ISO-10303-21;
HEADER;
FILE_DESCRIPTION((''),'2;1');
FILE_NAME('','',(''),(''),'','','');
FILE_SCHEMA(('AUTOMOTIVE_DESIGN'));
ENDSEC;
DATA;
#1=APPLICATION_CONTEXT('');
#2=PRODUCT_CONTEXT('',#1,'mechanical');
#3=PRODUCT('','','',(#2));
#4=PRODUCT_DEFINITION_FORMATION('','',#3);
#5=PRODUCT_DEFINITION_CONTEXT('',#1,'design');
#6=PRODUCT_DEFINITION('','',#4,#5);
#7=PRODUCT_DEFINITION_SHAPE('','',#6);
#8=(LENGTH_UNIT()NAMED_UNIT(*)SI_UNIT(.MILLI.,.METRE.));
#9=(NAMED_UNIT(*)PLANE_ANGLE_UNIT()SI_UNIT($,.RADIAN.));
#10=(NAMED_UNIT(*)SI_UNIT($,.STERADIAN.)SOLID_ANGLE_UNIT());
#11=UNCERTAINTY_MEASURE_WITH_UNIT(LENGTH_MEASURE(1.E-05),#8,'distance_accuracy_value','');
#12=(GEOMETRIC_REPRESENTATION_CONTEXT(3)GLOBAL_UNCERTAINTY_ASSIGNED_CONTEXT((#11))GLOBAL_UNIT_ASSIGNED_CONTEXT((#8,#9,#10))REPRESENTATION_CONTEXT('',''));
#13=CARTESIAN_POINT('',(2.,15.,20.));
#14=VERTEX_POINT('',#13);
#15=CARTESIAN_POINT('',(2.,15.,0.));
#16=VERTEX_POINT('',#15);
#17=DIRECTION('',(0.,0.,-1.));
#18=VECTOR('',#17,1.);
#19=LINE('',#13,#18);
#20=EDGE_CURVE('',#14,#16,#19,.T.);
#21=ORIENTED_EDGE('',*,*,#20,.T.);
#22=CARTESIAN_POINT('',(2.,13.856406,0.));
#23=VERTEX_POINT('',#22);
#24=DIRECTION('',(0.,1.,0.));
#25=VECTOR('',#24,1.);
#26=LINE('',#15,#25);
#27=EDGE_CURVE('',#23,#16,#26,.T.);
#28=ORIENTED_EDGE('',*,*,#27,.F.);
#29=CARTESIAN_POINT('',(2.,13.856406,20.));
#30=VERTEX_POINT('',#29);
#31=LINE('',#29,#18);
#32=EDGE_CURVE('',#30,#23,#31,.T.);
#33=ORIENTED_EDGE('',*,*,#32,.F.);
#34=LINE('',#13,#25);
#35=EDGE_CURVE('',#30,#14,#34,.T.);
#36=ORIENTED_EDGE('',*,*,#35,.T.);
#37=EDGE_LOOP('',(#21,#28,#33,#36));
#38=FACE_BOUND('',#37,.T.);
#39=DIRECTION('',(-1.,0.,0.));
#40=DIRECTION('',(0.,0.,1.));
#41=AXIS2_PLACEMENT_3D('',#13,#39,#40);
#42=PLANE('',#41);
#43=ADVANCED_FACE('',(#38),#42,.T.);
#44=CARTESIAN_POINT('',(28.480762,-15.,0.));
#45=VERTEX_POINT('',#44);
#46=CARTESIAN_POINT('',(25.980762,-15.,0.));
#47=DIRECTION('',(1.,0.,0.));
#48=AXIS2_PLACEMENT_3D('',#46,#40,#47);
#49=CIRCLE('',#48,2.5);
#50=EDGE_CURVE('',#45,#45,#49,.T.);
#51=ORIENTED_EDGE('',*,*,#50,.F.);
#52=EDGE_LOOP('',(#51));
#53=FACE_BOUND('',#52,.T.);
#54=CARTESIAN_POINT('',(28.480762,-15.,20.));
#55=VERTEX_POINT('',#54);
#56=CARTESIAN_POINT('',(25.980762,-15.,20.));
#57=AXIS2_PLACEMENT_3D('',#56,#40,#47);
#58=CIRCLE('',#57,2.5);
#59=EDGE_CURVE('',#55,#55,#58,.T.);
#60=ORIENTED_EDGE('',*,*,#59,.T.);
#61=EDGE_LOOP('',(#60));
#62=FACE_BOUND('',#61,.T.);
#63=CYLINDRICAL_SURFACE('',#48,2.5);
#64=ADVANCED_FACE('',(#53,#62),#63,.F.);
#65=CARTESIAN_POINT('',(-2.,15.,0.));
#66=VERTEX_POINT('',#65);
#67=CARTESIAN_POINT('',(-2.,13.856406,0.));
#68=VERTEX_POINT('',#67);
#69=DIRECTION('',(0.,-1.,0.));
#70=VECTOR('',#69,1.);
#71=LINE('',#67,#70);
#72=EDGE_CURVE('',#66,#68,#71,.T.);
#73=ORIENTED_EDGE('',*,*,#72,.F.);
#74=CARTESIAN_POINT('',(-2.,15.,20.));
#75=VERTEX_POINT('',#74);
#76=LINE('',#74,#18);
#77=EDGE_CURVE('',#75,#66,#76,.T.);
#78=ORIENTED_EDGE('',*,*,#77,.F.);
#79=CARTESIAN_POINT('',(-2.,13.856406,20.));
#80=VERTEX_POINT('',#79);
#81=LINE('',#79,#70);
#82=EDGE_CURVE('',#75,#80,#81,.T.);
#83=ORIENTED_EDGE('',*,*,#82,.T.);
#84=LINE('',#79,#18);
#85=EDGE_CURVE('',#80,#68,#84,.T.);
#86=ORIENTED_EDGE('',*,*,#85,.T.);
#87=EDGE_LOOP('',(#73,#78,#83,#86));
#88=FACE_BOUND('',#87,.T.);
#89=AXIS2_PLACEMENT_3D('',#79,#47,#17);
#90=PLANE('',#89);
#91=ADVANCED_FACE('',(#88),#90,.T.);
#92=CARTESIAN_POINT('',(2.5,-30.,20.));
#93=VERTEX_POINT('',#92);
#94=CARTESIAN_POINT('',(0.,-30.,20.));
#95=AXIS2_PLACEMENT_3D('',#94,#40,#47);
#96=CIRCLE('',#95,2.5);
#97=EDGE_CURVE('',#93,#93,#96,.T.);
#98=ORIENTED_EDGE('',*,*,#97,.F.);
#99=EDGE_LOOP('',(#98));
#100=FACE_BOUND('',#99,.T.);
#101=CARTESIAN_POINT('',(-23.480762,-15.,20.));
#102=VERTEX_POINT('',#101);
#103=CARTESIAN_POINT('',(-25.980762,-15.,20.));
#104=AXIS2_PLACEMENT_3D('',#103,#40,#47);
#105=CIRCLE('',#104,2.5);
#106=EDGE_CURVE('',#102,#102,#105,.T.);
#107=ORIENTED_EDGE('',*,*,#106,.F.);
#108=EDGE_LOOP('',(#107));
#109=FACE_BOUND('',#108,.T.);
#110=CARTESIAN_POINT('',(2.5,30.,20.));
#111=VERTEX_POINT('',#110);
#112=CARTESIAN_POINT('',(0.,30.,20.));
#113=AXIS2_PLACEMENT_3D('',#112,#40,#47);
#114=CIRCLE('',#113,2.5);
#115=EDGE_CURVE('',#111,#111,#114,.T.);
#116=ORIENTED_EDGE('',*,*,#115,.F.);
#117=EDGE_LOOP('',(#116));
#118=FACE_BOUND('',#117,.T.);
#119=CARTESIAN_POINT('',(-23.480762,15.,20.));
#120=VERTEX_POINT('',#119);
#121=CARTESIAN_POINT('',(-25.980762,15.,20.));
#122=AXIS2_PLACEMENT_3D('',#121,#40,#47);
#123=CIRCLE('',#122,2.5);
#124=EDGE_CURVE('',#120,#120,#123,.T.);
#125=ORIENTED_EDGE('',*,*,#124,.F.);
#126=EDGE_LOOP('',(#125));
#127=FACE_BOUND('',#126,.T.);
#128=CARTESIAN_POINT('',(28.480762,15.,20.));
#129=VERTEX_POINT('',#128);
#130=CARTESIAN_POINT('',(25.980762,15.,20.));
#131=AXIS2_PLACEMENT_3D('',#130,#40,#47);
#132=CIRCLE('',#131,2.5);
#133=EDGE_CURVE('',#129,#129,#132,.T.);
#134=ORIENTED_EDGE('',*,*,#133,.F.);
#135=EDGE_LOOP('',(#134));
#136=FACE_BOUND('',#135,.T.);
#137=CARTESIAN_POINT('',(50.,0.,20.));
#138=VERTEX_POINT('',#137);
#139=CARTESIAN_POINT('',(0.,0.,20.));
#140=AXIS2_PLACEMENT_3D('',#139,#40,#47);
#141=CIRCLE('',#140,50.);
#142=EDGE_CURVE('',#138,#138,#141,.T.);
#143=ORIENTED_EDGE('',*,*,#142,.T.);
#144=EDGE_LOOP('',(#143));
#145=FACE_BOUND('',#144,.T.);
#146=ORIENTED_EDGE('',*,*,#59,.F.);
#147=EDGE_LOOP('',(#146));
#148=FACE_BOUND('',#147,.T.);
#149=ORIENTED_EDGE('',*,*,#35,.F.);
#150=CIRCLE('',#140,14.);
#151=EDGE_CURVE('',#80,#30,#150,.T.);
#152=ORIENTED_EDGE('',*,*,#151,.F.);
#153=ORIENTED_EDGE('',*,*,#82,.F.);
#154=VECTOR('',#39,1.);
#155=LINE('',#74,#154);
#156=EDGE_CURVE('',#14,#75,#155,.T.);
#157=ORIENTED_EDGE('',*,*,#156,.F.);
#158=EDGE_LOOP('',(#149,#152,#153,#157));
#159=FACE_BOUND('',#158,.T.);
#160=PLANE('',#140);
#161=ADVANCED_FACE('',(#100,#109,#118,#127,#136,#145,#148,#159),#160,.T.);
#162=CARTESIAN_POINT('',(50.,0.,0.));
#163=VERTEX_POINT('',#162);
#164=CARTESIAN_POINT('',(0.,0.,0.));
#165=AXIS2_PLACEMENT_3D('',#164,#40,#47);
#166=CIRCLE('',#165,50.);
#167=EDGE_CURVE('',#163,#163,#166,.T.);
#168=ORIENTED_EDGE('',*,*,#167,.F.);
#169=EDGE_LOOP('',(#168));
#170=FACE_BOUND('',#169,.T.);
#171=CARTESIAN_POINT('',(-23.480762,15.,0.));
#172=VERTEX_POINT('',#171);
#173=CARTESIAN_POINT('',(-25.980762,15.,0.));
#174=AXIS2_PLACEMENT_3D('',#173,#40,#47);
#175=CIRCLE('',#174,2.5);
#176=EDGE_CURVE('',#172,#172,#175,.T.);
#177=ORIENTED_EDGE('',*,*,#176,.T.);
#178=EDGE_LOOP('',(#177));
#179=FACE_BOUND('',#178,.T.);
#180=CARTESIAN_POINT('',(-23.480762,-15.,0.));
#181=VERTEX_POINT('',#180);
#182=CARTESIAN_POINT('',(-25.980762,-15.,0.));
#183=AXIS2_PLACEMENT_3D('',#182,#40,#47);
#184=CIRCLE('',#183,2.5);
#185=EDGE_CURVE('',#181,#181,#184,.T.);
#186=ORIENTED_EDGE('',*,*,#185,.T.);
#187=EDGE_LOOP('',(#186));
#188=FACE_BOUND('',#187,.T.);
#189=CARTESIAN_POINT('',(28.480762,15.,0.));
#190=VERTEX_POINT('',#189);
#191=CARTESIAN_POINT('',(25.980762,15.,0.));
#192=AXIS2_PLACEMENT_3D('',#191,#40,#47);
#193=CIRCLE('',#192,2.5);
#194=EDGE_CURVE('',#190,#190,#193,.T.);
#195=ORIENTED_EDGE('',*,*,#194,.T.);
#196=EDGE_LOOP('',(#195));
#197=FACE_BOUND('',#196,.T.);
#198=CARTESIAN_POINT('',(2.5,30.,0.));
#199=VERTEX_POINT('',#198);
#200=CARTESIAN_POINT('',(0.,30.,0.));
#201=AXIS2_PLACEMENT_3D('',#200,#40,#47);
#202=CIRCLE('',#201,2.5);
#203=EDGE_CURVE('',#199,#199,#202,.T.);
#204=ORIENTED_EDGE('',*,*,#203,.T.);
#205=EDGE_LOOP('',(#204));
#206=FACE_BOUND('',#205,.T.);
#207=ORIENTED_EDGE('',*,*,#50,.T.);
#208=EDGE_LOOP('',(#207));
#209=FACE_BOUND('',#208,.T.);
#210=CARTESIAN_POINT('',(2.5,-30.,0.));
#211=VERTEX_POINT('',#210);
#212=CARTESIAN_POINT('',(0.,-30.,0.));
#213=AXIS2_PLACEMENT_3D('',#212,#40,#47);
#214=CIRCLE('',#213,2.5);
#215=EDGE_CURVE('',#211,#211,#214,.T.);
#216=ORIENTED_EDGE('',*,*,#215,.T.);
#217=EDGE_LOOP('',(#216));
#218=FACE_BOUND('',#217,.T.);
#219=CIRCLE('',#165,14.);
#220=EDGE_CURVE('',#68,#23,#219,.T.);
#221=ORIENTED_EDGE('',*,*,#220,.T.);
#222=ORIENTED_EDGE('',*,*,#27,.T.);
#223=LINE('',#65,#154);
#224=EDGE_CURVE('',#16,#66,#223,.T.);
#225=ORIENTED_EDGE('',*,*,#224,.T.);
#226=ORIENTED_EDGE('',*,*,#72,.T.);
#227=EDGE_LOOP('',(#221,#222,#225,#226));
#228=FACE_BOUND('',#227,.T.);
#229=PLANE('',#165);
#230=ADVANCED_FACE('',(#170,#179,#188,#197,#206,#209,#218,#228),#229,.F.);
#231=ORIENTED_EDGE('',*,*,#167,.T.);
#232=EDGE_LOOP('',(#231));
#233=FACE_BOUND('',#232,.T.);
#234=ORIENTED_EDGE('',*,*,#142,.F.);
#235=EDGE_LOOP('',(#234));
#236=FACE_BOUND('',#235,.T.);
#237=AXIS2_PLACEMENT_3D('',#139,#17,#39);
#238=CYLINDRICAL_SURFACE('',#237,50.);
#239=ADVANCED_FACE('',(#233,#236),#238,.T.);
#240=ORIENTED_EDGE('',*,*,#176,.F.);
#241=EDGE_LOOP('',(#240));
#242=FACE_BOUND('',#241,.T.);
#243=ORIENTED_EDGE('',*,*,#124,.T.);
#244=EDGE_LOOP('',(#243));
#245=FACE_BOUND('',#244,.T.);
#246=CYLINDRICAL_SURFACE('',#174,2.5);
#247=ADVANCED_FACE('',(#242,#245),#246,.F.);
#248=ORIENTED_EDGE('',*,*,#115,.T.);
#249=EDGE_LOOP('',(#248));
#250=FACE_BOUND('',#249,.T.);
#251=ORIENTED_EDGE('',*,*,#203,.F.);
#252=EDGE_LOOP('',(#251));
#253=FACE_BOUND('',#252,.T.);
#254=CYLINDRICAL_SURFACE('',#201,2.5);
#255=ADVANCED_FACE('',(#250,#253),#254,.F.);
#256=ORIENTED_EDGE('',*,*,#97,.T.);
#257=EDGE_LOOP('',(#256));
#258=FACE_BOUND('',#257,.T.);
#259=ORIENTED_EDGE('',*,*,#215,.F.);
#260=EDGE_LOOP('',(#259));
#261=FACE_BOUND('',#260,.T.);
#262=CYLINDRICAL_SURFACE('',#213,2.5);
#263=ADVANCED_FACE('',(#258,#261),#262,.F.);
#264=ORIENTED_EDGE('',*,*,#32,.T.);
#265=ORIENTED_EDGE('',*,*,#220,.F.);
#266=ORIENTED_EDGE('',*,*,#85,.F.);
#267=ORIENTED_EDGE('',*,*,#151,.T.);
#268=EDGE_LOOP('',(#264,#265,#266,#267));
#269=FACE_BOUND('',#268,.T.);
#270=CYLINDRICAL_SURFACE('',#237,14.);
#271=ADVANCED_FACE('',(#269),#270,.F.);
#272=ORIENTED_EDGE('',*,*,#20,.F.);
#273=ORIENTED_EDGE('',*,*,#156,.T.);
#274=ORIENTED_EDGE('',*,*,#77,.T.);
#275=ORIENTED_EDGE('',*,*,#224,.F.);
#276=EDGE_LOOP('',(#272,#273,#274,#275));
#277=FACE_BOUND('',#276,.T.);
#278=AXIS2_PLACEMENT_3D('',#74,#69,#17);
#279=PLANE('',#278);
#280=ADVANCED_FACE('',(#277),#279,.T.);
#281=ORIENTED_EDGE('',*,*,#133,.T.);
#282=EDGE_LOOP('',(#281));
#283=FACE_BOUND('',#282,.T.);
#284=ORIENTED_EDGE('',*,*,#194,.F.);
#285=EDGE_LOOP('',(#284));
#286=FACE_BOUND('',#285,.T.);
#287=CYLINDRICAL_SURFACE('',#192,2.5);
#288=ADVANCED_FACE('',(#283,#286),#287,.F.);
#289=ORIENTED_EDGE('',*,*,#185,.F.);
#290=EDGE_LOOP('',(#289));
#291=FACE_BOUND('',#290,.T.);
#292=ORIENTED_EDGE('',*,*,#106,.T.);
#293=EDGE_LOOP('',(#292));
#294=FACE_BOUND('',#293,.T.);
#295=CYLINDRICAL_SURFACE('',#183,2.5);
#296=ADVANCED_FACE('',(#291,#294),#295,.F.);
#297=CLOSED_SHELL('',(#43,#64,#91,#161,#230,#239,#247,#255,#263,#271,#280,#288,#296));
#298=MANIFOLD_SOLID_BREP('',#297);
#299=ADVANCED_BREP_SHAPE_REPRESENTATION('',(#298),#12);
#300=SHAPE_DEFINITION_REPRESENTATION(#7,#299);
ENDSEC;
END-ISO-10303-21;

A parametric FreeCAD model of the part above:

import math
import FreeCAD as App
import Part
import Sketcher

V = App.Vector

doc = App.newDocument("Part")
body = doc.addObject("PartDesign::Body", "Body")

sketch1 = doc.addObject("Sketcher::SketchObject", "Sketch")
body.addObject(sketch1)
sketch1.AttachmentSupport = (doc.XY_Plane, [""])
sketch1.MapMode = "FlatFace"
sketch1.addGeometry(Part.Circle(V(0, 0, 0), V(0, 0, 1), 50), False)
sketch1.addGeometry(Part.ArcOfCircle(Part.Circle(V(0, 0, 0), V(0, 0, 1), 14), math.radians(98.213211), math.radians(441.786789)), False)
sketch1.addGeometry(Part.LineSegment(V(-2, 13.856406, 0), V(-2, 15, 0)), False)
sketch1.addGeometry(Part.LineSegment(V(-2, 15, 0), V(2, 15, 0)), False)
sketch1.addGeometry(Part.LineSegment(V(2, 15, 0), V(2, 13.856406, 0)), False)
sketch1.addConstraint(Sketcher.Constraint("Coincident", 1, 1, 2, 1))
sketch1.addConstraint(Sketcher.Constraint("Coincident", 2, 2, 3, 1))
sketch1.addConstraint(Sketcher.Constraint("Coincident", 3, 2, 4, 1))
sketch1.addConstraint(Sketcher.Constraint("Coincident", 4, 2, 1, 2))
sketch1.addConstraint(Sketcher.Constraint("Vertical", 2))
sketch1.addConstraint(Sketcher.Constraint("Horizontal", 3))
sketch1.addConstraint(Sketcher.Constraint("Vertical", 4))
sketch1.addConstraint(Sketcher.Constraint("Coincident", 0, 3, -1, 1))
sketch1.addConstraint(Sketcher.Constraint("Coincident", 1, 3, -1, 1))
sketch1.addConstraint(Sketcher.Constraint("Horizontal", 1, 1, 4, 2))
sketch1.addConstraint(Sketcher.Constraint("Diameter", 0, 100.0))
sketch1.addConstraint(Sketcher.Constraint("Radius", 1, 14.0))
sketch1.addConstraint(Sketcher.Constraint("DistanceX", 3, 1, 3, 2, 4.0))
sketch1.addConstraint(Sketcher.Constraint("DistanceY", -1, 1, 2, 2, 15.0))
pad1 = doc.addObject("PartDesign::Pad", "Pad")
body.addObject(pad1)
pad1.Profile = sketch1
pad1.Length = 20

sketch2 = doc.addObject("Sketcher::SketchObject", "Sketch001")
body.addObject(sketch2)
sketch2.AttachmentSupport = (doc.XY_Plane, [""])
sketch2.MapMode = "FlatFace"
sketch2.AttachmentOffset = App.Placement(V(0, 0, 20), App.Rotation())
sketch2.addGeometry(Part.Circle(V(0, -30, 0), V(0, 0, 1), 2.5), False)
sketch2.addGeometry(Part.Circle(V(-25.980762, -15, 0), V(0, 0, 1), 2.5), False)
sketch2.addGeometry(Part.Circle(V(-25.980762, 15, 0), V(0, 0, 1), 2.5), False)
sketch2.addGeometry(Part.Circle(V(0, 30, 0), V(0, 0, 1), 2.5), False)
sketch2.addGeometry(Part.Circle(V(25.980762, 15, 0), V(0, 0, 1), 2.5), False)
sketch2.addGeometry(Part.Circle(V(25.980762, -15, 0), V(0, 0, 1), 2.5), False)
sketch2.addConstraint(Sketcher.Constraint("Equal", 0, 1))
sketch2.addConstraint(Sketcher.Constraint("Equal", 1, 2))
sketch2.addConstraint(Sketcher.Constraint("Equal", 2, 3))
sketch2.addConstraint(Sketcher.Constraint("Equal", 3, 4))
sketch2.addConstraint(Sketcher.Constraint("Equal", 4, 5))
sketch2.addConstraint(Sketcher.Constraint("Symmetric", 0, 3, 3, 3, -1, 1))
sketch2.addConstraint(Sketcher.Constraint("Symmetric", 1, 3, 4, 3, -1, 1))
sketch2.addConstraint(Sketcher.Constraint("Symmetric", 2, 3, 5, 3, -1, 1))
sketch2.addConstraint(Sketcher.Constraint("Symmetric", 2, 3, 4, 3, -2))
sketch2.addConstraint(Sketcher.Constraint("PointOnObject", 0, 3, -2))
sketch2.addConstraint(Sketcher.Constraint("Diameter", 0, 5.0))
sketch2.addConstraint(Sketcher.Constraint("DistanceY", 0, 3, -1, 1, 30.0))
sketch2.addConstraint(Sketcher.Constraint("DistanceY", 1, 3, -1, 1, 15.0))
sketch2.addConstraint(Sketcher.Constraint("DistanceX", 1, 3, -1, 1, 25.980762))
pocket1 = doc.addObject("PartDesign::Pocket", "Pocket")
body.addObject(pocket1)
pocket1.Profile = sketch2
pocket1.Type = "ThroughAll"

doc.recompute()
